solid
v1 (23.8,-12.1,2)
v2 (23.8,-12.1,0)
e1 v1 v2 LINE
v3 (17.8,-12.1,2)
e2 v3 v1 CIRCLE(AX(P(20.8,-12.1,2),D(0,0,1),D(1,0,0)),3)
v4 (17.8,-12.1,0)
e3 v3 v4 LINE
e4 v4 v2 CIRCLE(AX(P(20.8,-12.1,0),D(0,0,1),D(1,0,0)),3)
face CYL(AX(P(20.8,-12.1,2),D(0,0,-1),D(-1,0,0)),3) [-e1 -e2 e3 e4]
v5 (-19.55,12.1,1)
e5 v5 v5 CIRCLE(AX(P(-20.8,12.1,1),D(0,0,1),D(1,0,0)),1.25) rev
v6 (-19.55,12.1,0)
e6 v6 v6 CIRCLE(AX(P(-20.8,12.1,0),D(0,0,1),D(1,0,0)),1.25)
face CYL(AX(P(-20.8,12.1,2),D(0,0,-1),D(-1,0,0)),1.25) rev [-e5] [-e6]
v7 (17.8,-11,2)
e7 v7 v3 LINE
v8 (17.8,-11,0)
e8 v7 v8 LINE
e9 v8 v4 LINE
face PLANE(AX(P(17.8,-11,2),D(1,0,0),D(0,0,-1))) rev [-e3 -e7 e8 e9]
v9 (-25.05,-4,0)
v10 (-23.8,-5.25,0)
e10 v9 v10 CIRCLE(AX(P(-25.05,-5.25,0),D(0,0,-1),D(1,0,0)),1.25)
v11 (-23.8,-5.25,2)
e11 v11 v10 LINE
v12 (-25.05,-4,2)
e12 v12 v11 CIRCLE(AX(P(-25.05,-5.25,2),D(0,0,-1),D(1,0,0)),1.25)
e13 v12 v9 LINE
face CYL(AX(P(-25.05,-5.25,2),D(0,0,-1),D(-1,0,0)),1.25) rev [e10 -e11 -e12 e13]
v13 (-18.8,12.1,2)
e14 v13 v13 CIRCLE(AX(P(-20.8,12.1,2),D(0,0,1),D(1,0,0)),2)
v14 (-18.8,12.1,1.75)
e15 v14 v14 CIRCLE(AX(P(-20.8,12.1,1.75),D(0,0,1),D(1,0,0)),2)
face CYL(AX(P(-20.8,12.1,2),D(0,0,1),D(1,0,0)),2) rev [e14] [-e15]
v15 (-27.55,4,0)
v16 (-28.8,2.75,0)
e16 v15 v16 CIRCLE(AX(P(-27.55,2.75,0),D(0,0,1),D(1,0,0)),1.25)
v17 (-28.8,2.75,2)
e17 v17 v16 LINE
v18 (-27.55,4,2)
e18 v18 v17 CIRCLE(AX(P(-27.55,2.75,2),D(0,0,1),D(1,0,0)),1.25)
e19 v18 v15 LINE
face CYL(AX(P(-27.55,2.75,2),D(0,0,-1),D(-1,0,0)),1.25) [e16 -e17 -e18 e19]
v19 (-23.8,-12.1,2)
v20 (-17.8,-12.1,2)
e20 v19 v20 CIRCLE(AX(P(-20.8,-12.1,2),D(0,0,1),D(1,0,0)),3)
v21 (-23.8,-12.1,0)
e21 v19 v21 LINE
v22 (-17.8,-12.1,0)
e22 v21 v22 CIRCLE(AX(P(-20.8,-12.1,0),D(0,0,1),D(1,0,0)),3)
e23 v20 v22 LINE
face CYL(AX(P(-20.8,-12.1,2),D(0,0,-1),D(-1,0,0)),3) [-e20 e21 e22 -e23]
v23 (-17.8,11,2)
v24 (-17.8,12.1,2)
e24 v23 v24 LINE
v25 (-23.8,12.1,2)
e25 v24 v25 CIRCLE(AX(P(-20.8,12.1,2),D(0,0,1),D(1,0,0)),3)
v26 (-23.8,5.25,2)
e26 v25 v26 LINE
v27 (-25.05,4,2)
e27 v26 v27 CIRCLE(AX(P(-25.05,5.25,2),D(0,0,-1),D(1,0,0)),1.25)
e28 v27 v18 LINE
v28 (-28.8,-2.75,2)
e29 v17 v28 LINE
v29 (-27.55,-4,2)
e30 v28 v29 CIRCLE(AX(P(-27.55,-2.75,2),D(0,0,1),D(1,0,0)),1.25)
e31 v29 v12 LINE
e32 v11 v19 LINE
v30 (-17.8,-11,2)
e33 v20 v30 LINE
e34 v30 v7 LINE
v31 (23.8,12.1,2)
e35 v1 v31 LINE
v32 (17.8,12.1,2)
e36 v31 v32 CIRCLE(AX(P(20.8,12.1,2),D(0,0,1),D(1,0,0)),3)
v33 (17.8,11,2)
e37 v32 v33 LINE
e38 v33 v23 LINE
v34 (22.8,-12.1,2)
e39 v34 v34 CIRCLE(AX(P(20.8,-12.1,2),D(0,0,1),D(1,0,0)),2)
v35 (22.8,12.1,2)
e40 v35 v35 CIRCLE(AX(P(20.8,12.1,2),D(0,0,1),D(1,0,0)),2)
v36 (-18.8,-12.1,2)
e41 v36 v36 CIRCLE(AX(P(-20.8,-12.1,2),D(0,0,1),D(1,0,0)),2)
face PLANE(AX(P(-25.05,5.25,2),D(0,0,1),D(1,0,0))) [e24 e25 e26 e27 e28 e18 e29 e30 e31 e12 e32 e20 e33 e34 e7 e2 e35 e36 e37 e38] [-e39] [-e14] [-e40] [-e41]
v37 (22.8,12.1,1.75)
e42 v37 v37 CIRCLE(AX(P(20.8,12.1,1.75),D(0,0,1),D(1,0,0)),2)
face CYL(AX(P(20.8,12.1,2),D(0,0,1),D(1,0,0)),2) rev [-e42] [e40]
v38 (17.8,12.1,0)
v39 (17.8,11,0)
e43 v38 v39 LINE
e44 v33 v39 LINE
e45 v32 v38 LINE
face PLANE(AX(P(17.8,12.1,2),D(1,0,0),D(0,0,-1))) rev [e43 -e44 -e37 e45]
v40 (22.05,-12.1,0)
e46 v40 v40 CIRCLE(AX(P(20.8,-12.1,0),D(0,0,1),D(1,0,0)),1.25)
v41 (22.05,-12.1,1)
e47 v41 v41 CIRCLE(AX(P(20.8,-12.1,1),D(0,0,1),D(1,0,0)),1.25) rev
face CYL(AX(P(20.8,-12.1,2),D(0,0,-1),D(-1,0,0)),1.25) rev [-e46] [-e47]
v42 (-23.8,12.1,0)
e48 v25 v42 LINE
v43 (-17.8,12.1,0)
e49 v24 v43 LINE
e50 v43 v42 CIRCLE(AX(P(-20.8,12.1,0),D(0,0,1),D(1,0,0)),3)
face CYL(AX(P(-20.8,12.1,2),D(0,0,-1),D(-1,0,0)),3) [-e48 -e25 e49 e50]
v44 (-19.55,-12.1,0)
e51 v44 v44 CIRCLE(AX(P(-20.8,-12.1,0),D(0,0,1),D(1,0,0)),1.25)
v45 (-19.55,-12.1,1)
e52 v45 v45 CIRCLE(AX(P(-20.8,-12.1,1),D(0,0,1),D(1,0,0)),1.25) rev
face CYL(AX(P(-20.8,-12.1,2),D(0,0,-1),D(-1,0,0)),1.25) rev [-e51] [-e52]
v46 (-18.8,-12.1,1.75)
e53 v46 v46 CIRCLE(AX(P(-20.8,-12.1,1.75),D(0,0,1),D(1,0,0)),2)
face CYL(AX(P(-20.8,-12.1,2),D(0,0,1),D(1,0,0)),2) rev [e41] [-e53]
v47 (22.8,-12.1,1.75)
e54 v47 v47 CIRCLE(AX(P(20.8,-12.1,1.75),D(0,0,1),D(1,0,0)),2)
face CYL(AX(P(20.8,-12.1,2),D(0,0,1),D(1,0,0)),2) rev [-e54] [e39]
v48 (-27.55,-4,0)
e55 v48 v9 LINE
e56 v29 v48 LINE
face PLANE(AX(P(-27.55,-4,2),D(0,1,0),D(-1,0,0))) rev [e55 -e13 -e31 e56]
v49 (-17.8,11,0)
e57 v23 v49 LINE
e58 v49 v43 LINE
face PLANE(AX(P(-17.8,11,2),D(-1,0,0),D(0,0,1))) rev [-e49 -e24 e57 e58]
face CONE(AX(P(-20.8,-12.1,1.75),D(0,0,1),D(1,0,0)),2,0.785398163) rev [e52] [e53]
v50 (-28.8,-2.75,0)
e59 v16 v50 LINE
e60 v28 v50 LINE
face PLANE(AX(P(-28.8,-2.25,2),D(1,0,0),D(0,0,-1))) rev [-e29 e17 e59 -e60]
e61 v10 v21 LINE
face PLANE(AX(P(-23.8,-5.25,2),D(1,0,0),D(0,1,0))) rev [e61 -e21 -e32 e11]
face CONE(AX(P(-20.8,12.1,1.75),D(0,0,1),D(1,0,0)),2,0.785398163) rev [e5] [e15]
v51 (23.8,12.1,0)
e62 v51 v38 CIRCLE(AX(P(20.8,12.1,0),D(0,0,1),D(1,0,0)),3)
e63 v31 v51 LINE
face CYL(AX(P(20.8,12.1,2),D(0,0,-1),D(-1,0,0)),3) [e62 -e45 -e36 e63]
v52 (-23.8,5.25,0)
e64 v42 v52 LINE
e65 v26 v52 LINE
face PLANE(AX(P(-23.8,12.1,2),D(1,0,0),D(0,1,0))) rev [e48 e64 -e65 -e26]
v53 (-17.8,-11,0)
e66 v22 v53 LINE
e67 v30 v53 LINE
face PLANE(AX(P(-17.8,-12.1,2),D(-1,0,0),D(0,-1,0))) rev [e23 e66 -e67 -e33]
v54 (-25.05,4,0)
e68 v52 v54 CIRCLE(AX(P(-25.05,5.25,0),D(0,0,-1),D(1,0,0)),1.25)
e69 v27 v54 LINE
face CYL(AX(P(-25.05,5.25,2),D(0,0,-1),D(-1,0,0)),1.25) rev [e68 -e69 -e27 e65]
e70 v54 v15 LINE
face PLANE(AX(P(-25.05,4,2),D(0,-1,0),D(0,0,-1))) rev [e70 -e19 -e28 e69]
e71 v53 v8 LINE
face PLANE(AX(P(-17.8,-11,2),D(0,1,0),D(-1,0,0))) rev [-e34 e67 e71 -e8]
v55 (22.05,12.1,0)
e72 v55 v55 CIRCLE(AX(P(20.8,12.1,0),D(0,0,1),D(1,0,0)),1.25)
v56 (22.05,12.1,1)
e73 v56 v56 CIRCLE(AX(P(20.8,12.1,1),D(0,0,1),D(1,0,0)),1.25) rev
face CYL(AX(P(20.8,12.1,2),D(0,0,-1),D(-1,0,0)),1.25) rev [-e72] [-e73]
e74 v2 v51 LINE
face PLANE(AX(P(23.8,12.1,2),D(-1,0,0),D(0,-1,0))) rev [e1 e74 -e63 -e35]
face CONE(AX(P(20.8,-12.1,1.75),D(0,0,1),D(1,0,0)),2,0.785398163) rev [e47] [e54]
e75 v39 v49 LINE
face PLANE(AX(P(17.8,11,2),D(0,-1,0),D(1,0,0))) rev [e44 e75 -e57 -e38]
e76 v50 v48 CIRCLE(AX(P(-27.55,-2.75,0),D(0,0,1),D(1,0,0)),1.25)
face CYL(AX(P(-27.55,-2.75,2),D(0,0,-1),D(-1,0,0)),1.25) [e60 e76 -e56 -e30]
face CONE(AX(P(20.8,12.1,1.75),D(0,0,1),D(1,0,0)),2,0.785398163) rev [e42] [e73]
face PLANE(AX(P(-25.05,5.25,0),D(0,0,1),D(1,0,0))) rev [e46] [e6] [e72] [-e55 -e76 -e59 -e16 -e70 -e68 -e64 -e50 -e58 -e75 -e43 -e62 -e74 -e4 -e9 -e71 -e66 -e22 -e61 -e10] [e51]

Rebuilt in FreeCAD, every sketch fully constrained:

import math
import FreeCAD as App
import Part
import Sketcher

V = App.Vector
Q = App.Units.Quantity

doc = App.newDocument("Part")
params = doc.addObject("Spreadsheet::Sheet", "Params")
for row, (alias, value) in enumerate([
    ("sketch1_radius", "3 mm"),
    ("sketch1_diameter", "2.5 mm"),
    ("sketch1_width", "2.5 mm"),
    ("sketch1_width2", "35.6 mm"),
    ("sketch1_height", "1.1 mm"),
    ("pad1_length", "2 mm"),
    ("sketch2_width", "2 mm"),
    ("sketch2_height", "0.25 mm"),
    ("sketch2_height2", "2.55 mm"),
    ("groove_angle", "360 deg"),
    ("linearpattern_pitch", "41.6 mm"),
    ("linearpattern2_pitch", "48.126916 mm"),
    ("linearpattern3_pitch", "24.2 mm"),
], start=1):
    params.set(f"A{row}", alias)
    params.set(f"B{row}", "=" + value)
    params.setAlias(f"B{row}", alias)

body = doc.addObject("PartDesign::Body", "Body")

sketch1 = doc.addObject("Sketcher::SketchObject", "Sketch")
body.addObject(sketch1)
sketch1.AttachmentSupport = (doc.XY_Plane, [""])
sketch1.MapMode = "FlatFace"
sketch1.addGeometry(Part.ArcOfCircle(Part.Circle(V(-27.5, -2.7, 0), V(0, 0, 1), 1.3), math.radians(-180), math.radians(-90)), False)
sketch1.addGeometry(Part.LineSegment(V(-27.6, -4, 0), V(-25.1, -4, 0)), False)
sketch1.addGeometry(Part.ArcOfCircle(Part.Circle(V(-25.1, -5.3, 0), V(0, 0, 1), 1.3), math.radians(0), math.radians(90)), False)
sketch1.addGeometry(Part.LineSegment(V(-23.8, -5.2, 0), V(-23.8, -12.1, 0)), False)
sketch1.addGeometry(Part.ArcOfCircle(Part.Circle(V(-20.8, -12.1, 0), V(0, 0, 1), 3), math.radians(180), math.radians(360)), False)
sketch1.addGeometry(Part.LineSegment(V(-17.8, -12.1, 0), V(-17.8, -11, 0)), False)
sketch1.addGeometry(Part.LineSegment(V(-17.8, -11, 0), V(17.8, -11, 0)), False)
sketch1.addGeometry(Part.LineSegment(V(17.8, -11, 0), V(17.8, -12.1, 0)), False)
sketch1.addGeometry(Part.ArcOfCircle(Part.Circle(V(20.8, -12.1, 0), V(0, 0, 1), 3), math.radians(180), math.radians(360)), False)
sketch1.addGeometry(Part.LineSegment(V(23.8, -12.1, 0), V(23.8, 12.1, 0)), False)
sketch1.addGeometry(Part.ArcOfCircle(Part.Circle(V(20.8, 12.1, 0), V(0, 0, 1), 3), math.radians(0), math.radians(180)), False)
sketch1.addGeometry(Part.LineSegment(V(17.8, 12.1, 0), V(17.8, 11, 0)), False)
sketch1.addGeometry(Part.LineSegment(V(17.8, 11, 0), V(-17.8, 11, 0)), False)
sketch1.addGeometry(Part.LineSegment(V(-17.8, 11, 0), V(-17.8, 12.1, 0)), False)
sketch1.addGeometry(Part.ArcOfCircle(Part.Circle(V(-20.8, 12.1, 0), V(0, 0, 1), 3), math.radians(0), math.radians(180)), False)
sketch1.addGeometry(Part.LineSegment(V(-23.8, 12.1, 0), V(-23.8, 5.2, 0)), False)
sketch1.addGeometry(Part.ArcOfCircle(Part.Circle(V(-25.1, 5.3, 0), V(0, 0, 1), 1.3), math.radians(-90), math.radians(0)), False)
sketch1.addGeometry(Part.LineSegment(V(-25.1, 4, 0), V(-27.6, 4, 0)), False)
sketch1.addGeometry(Part.ArcOfCircle(Part.Circle(V(-27.5, 2.7, 0), V(0, 0, 1), 1.3), math.radians(90), math.radians(180)), False)
sketch1.addGeometry(Part.LineSegment(V(-28.8, 2.8, 0), V(-28.8, -2.8, 0)), False)
sketch1.addGeometry(Part.Circle(V(-20.8, -12.1, 0), V(0, 0, 1), 1.2), False)
sketch1.addGeometry(Part.Circle(V(20.8, -12.1, 0), V(0, 0, 1), 1.2), False)
sketch1.addGeometry(Part.Circle(V(-20.8, 12.1, 0), V(0, 0, 1), 1.2), False)
sketch1.addGeometry(Part.Circle(V(20.8, 12.1, 0), V(0, 0, 1), 1.2), False)
sketch1.addConstraint(Sketcher.Constraint("Tangent", 0, 2, 1, 1))
sketch1.addConstraint(Sketcher.Constraint("Tangent", 1, 2, 2, 2))
sketch1.addConstraint(Sketcher.Constraint("Tangent", 2, 1, 3, 1))
sketch1.addConstraint(Sketcher.Constraint("Tangent", 3, 2, 4, 1))
sketch1.addConstraint(Sketcher.Constraint("Tangent", 4, 2, 5, 1))
sketch1.addConstraint(Sketcher.Constraint("Coincident", 5, 2, 6, 1))
sketch1.addConstraint(Sketcher.Constraint("Coincident", 6, 2, 7, 1))
sketch1.addConstraint(Sketcher.Constraint("Tangent", 7, 2, 8, 1))
sketch1.addConstraint(Sketcher.Constraint("Tangent", 8, 2, 9, 1))
sketch1.addConstraint(Sketcher.Constraint("Tangent", 9, 2, 10, 1))
sketch1.addConstraint(Sketcher.Constraint("Tangent", 10, 2, 11, 1))
sketch1.addConstraint(Sketcher.Constraint("Coincident", 11, 2, 12, 1))
sketch1.addConstraint(Sketcher.Constraint("Coincident", 12, 2, 13, 1))
sketch1.addConstraint(Sketcher.Constraint("Tangent", 13, 2, 14, 1))
sketch1.addConstraint(Sketcher.Constraint("Tangent", 14, 2, 15, 1))
sketch1.addConstraint(Sketcher.Constraint("Tangent", 15, 2, 16, 2))
sketch1.addConstraint(Sketcher.Constraint("Tangent", 16, 1, 17, 1))
sketch1.addConstraint(Sketcher.Constraint("Tangent", 17, 2, 18, 1))
sketch1.addConstraint(Sketcher.Constraint("Tangent", 18, 2, 19, 1))
sketch1.addConstraint(Sketcher.Constraint("Tangent", 19, 2, 0, 1))
sketch1.addConstraint(Sketcher.Constraint("Horizontal", 1))
sketch1.addConstraint(Sketcher.Constraint("Vertical", 3))
sketch1.addConstraint(Sketcher.Constraint("Vertical", 5))
sketch1.addConstraint(Sketcher.Constraint("Horizontal", 6))
sketch1.addConstraint(Sketcher.Constraint("Vertical", 7))
sketch1.addConstraint(Sketcher.Constraint("Vertical", 9))
sketch1.addConstraint(Sketcher.Constraint("Vertical", 11))
sketch1.addConstraint(Sketcher.Constraint("Horizontal", 12))
sketch1.addConstraint(Sketcher.Constraint("Vertical", 13))
sketch1.addConstraint(Sketcher.Constraint("Vertical", 15))
sketch1.addConstraint(Sketcher.Constraint("Horizontal", 17))
sketch1.addConstraint(Sketcher.Constraint("Vertical", 19))
sketch1.addConstraint(Sketcher.Constraint("Coincident", 20, 3, 4, 3))
sketch1.addConstraint(Sketcher.Constraint("Coincident", 21, 3, 8, 3))
sketch1.addConstraint(Sketcher.Constraint("Coincident", 22, 3, 14, 3))
sketch1.addConstraint(Sketcher.Constraint("Coincident", 23, 3, 10, 3))
sketch1.addConstraint(Sketcher.Constraint("Equal", 0, 2))
sketch1.addConstraint(Sketcher.Constraint("Equal", 4, 8))
sketch1.addConstraint(Sketcher.Constraint("Equal", 8, 10))
sketch1.addConstraint(Sketcher.Constraint("Equal", 10, 14))
sketch1.addConstraint(Sketcher.Constraint("Equal", 2, 16))
sketch1.addConstraint(Sketcher.Constraint("Equal", 16, 18))
sketch1.addConstraint(Sketcher.Constraint("Equal", 18, 20))
sketch1.addConstraint(Sketcher.Constraint("Equal", 20, 21))
sketch1.addConstraint(Sketcher.Constraint("Equal", 21, 22))
sketch1.addConstraint(Sketcher.Constraint("Equal", 22, 23))
sketch1.addConstraint(Sketcher.Constraint("Symmetric", 4, 3, 10, 3, -1, 1))
sketch1.addConstraint(Sketcher.Constraint("Symmetric", 8, 3, 14, 3, -1, 1))
sketch1.addConstraint(Sketcher.Constraint("Horizontal", 4, 3, 8, 3))
sketch1.addConstraint(Sketcher.Constraint("Equal", 7, 11))
sketch1.addConstraint(Sketcher.Constraint("Equal", 3, 15))
sketch1.addConstraint(Sketcher.Constraint("Radius", 4, 3.0))
sketch1.addConstraint(Sketcher.Constraint("Diameter", 20, 2.5))
sketch1.addConstraint(Sketcher.Constraint("DistanceX", 1, 1, 1, 2, 2.5))
sketch1.addConstraint(Sketcher.Constraint("DistanceX", 6, 1, 6, 2, 35.6))
sketch1.addConstraint(Sketcher.Constraint("DistanceY", 5, 1, 5, 2, 1.1))
sketch1.addConstraint(Sketcher.Constraint("DistanceY", 9, 1, 9, 2, 24.2))
sketch1.addConstraint(Sketcher.Constraint("DistanceY", 19, 2, 19, 1, 5.5))
sketch1.setExpression("Constraints[51]", "Params.sketch1_radius")
sketch1.setExpression("Constraints[52]", "Params.sketch1_diameter")
sketch1.setExpression("Constraints[53]", "Params.sketch1_width")
sketch1.setExpression("Constraints[54]", "Params.sketch1_width2")
sketch1.setExpression("Constraints[55]", "Params.sketch1_height")
pad1 = doc.addObject("PartDesign::Pad", "Pad")
body.addObject(pad1)
pad1.Profile = sketch1
pad1.setExpression("Length", "Params.pad1_length")

sketch2 = doc.addObject("Sketcher::SketchObject", "Sketch001")
body.addObject(sketch2)
sketch2.AttachmentSupport = (doc.YZ_Plane, [""])
sketch2.MapMode = "FlatFace"
sketch2.AttachmentOffset = App.Placement(V(0, 0, -20.8), App.Rotation())
sketch2.addGeometry(Part.LineSegment(V(12.1, -2.4, 0), V(12.1, 2, 0)), False)
sketch2.addGeometry(Part.LineSegment(V(12.1, 2, 0), V(10.1, 2, 0)), False)
sketch2.addGeometry(Part.LineSegment(V(10.1, 2, 0), V(10.1, 1.75, 0)), False)
sketch2.addGeometry(Part.LineSegment(V(10.1, 1.75, 0), V(11.1, 0.75, 0)), False)
sketch2.addGeometry(Part.LineSegment(V(11.1, 0.75, 0), V(11.1, -1.8, 0)), False)
sketch2.addGeometry(Part.LineSegment(V(11.1, -1.8, 0), V(12.1, -2.4, 0)), False)
sketch2.addGeometry(Part.LineSegment(V(12.1, 2, 0), V(12.1, -2.4, 0)), True)
sketch2.addConstraint(Sketcher.Constraint("Coincident", 0, 2, 1, 1))
sketch2.addConstraint(Sketcher.Constraint("Coincident", 1, 2, 2, 1))
sketch2.addConstraint(Sketcher.Constraint("Coincident", 2, 2, 3, 1))
sketch2.addConstraint(Sketcher.Constraint("Coincident", 3, 2, 4, 1))
sketch2.addConstraint(Sketcher.Constraint("Coincident", 4, 2, 5, 1))
sketch2.addConstraint(Sketcher.Constraint("Coincident", 5, 2, 0, 1))
sketch2.addConstraint(Sketcher.Constraint("Vertical", 0))
sketch2.addConstraint(Sketcher.Constraint("Horizontal", 1))
sketch2.addConstraint(Sketcher.Constraint("Vertical", 2))
sketch2.addConstraint(Sketcher.Constraint("Vertical", 4))
sketch2.addConstraint(Sketcher.Constraint("Vertical", 6))
sketch2.addConstraint(Sketcher.Constraint("Coincident", 6, 1, 0, 2))
sketch2.addConstraint(Sketcher.Constraint("Equal", 0, 6))
sketch2.addConstraint(Sketcher.Constraint("DistanceX", 1, 2, 1, 1, 2.0))
sketch2.addConstraint(Sketcher.Constraint("Angle", 3, Q("-45 deg")))
sketch2.addConstraint(Sketcher.Constraint("Angle", 5, Q("-31 deg")))
sketch2.addConstraint(Sketcher.Constraint("DistanceY", -1, 1, 0, 2, 2.0))
sketch2.addConstraint(Sketcher.Constraint("DistanceX", 2, 2, 3, 2, 1.0))
sketch2.addConstraint(Sketcher.Constraint("DistanceY", 2, 2, 2, 1, 0.25))
sketch2.addConstraint(Sketcher.Constraint("DistanceY", 4, 2, 4, 1, 2.55))
sketch2.addConstraint(Sketcher.Constraint("DistanceX", -1, 1, 0, 2, 12.1))
sketch2.setExpression("Constraints[13]", "Params.sketch2_width")
sketch2.setExpression("Constraints[18]", "Params.sketch2_height")
sketch2.setExpression("Constraints[19]", "Params.sketch2_height2")
groove = doc.addObject("PartDesign::Groove", "Groove")
body.addObject(groove)
groove.Profile = sketch2
groove.ReferenceAxis = (sketch2, ["Axis0"])
groove.setExpression("Angle", "Params.groove_angle")
doc.recompute()

linearpattern = doc.addObject("PartDesign::LinearPattern", "LinearPattern")
body.addObject(linearpattern)
linearpattern.Originals = [groove]
linearpattern.Direction = (doc.X_Axis, [""])
linearpattern.Mode = "offset"
linearpattern.setExpression("Offset", "Params.linearpattern_pitch")
linearpattern.Occurrences = 2
body.Tip = linearpattern
doc.recompute()

datumline = doc.addObject("PartDesign::Line", "DatumLine")
body.addObject(datumline)
datumline.Placement = App.Placement(V(0, 0, 0), App.Rotation(V(0, 0, 1), V(0.864381179, -0.502837128, 0)))
linearpattern2 = doc.addObject("PartDesign::LinearPattern", "LinearPattern001")
body.addObject(linearpattern2)
linearpattern2.Originals = [groove]
linearpattern2.Direction = (datumline, [""])
linearpattern2.Mode = "offset"
linearpattern2.setExpression("Offset", "Params.linearpattern2_pitch")
linearpattern2.Occurrences = 2
body.Tip = linearpattern2
doc.recompute()

linearpattern3 = doc.addObject("PartDesign::LinearPattern", "LinearPattern002")
body.addObject(linearpattern3)
linearpattern3.Originals = [groove]
linearpattern3.Direction = (doc.Y_Axis, [""])
linearpattern3.Mode = "offset"
linearpattern3.setExpression("Offset", "Params.linearpattern3_pitch")
linearpattern3.Occurrences = 2
linearpattern3.Reversed = True
body.Tip = linearpattern3

doc.recompute()
